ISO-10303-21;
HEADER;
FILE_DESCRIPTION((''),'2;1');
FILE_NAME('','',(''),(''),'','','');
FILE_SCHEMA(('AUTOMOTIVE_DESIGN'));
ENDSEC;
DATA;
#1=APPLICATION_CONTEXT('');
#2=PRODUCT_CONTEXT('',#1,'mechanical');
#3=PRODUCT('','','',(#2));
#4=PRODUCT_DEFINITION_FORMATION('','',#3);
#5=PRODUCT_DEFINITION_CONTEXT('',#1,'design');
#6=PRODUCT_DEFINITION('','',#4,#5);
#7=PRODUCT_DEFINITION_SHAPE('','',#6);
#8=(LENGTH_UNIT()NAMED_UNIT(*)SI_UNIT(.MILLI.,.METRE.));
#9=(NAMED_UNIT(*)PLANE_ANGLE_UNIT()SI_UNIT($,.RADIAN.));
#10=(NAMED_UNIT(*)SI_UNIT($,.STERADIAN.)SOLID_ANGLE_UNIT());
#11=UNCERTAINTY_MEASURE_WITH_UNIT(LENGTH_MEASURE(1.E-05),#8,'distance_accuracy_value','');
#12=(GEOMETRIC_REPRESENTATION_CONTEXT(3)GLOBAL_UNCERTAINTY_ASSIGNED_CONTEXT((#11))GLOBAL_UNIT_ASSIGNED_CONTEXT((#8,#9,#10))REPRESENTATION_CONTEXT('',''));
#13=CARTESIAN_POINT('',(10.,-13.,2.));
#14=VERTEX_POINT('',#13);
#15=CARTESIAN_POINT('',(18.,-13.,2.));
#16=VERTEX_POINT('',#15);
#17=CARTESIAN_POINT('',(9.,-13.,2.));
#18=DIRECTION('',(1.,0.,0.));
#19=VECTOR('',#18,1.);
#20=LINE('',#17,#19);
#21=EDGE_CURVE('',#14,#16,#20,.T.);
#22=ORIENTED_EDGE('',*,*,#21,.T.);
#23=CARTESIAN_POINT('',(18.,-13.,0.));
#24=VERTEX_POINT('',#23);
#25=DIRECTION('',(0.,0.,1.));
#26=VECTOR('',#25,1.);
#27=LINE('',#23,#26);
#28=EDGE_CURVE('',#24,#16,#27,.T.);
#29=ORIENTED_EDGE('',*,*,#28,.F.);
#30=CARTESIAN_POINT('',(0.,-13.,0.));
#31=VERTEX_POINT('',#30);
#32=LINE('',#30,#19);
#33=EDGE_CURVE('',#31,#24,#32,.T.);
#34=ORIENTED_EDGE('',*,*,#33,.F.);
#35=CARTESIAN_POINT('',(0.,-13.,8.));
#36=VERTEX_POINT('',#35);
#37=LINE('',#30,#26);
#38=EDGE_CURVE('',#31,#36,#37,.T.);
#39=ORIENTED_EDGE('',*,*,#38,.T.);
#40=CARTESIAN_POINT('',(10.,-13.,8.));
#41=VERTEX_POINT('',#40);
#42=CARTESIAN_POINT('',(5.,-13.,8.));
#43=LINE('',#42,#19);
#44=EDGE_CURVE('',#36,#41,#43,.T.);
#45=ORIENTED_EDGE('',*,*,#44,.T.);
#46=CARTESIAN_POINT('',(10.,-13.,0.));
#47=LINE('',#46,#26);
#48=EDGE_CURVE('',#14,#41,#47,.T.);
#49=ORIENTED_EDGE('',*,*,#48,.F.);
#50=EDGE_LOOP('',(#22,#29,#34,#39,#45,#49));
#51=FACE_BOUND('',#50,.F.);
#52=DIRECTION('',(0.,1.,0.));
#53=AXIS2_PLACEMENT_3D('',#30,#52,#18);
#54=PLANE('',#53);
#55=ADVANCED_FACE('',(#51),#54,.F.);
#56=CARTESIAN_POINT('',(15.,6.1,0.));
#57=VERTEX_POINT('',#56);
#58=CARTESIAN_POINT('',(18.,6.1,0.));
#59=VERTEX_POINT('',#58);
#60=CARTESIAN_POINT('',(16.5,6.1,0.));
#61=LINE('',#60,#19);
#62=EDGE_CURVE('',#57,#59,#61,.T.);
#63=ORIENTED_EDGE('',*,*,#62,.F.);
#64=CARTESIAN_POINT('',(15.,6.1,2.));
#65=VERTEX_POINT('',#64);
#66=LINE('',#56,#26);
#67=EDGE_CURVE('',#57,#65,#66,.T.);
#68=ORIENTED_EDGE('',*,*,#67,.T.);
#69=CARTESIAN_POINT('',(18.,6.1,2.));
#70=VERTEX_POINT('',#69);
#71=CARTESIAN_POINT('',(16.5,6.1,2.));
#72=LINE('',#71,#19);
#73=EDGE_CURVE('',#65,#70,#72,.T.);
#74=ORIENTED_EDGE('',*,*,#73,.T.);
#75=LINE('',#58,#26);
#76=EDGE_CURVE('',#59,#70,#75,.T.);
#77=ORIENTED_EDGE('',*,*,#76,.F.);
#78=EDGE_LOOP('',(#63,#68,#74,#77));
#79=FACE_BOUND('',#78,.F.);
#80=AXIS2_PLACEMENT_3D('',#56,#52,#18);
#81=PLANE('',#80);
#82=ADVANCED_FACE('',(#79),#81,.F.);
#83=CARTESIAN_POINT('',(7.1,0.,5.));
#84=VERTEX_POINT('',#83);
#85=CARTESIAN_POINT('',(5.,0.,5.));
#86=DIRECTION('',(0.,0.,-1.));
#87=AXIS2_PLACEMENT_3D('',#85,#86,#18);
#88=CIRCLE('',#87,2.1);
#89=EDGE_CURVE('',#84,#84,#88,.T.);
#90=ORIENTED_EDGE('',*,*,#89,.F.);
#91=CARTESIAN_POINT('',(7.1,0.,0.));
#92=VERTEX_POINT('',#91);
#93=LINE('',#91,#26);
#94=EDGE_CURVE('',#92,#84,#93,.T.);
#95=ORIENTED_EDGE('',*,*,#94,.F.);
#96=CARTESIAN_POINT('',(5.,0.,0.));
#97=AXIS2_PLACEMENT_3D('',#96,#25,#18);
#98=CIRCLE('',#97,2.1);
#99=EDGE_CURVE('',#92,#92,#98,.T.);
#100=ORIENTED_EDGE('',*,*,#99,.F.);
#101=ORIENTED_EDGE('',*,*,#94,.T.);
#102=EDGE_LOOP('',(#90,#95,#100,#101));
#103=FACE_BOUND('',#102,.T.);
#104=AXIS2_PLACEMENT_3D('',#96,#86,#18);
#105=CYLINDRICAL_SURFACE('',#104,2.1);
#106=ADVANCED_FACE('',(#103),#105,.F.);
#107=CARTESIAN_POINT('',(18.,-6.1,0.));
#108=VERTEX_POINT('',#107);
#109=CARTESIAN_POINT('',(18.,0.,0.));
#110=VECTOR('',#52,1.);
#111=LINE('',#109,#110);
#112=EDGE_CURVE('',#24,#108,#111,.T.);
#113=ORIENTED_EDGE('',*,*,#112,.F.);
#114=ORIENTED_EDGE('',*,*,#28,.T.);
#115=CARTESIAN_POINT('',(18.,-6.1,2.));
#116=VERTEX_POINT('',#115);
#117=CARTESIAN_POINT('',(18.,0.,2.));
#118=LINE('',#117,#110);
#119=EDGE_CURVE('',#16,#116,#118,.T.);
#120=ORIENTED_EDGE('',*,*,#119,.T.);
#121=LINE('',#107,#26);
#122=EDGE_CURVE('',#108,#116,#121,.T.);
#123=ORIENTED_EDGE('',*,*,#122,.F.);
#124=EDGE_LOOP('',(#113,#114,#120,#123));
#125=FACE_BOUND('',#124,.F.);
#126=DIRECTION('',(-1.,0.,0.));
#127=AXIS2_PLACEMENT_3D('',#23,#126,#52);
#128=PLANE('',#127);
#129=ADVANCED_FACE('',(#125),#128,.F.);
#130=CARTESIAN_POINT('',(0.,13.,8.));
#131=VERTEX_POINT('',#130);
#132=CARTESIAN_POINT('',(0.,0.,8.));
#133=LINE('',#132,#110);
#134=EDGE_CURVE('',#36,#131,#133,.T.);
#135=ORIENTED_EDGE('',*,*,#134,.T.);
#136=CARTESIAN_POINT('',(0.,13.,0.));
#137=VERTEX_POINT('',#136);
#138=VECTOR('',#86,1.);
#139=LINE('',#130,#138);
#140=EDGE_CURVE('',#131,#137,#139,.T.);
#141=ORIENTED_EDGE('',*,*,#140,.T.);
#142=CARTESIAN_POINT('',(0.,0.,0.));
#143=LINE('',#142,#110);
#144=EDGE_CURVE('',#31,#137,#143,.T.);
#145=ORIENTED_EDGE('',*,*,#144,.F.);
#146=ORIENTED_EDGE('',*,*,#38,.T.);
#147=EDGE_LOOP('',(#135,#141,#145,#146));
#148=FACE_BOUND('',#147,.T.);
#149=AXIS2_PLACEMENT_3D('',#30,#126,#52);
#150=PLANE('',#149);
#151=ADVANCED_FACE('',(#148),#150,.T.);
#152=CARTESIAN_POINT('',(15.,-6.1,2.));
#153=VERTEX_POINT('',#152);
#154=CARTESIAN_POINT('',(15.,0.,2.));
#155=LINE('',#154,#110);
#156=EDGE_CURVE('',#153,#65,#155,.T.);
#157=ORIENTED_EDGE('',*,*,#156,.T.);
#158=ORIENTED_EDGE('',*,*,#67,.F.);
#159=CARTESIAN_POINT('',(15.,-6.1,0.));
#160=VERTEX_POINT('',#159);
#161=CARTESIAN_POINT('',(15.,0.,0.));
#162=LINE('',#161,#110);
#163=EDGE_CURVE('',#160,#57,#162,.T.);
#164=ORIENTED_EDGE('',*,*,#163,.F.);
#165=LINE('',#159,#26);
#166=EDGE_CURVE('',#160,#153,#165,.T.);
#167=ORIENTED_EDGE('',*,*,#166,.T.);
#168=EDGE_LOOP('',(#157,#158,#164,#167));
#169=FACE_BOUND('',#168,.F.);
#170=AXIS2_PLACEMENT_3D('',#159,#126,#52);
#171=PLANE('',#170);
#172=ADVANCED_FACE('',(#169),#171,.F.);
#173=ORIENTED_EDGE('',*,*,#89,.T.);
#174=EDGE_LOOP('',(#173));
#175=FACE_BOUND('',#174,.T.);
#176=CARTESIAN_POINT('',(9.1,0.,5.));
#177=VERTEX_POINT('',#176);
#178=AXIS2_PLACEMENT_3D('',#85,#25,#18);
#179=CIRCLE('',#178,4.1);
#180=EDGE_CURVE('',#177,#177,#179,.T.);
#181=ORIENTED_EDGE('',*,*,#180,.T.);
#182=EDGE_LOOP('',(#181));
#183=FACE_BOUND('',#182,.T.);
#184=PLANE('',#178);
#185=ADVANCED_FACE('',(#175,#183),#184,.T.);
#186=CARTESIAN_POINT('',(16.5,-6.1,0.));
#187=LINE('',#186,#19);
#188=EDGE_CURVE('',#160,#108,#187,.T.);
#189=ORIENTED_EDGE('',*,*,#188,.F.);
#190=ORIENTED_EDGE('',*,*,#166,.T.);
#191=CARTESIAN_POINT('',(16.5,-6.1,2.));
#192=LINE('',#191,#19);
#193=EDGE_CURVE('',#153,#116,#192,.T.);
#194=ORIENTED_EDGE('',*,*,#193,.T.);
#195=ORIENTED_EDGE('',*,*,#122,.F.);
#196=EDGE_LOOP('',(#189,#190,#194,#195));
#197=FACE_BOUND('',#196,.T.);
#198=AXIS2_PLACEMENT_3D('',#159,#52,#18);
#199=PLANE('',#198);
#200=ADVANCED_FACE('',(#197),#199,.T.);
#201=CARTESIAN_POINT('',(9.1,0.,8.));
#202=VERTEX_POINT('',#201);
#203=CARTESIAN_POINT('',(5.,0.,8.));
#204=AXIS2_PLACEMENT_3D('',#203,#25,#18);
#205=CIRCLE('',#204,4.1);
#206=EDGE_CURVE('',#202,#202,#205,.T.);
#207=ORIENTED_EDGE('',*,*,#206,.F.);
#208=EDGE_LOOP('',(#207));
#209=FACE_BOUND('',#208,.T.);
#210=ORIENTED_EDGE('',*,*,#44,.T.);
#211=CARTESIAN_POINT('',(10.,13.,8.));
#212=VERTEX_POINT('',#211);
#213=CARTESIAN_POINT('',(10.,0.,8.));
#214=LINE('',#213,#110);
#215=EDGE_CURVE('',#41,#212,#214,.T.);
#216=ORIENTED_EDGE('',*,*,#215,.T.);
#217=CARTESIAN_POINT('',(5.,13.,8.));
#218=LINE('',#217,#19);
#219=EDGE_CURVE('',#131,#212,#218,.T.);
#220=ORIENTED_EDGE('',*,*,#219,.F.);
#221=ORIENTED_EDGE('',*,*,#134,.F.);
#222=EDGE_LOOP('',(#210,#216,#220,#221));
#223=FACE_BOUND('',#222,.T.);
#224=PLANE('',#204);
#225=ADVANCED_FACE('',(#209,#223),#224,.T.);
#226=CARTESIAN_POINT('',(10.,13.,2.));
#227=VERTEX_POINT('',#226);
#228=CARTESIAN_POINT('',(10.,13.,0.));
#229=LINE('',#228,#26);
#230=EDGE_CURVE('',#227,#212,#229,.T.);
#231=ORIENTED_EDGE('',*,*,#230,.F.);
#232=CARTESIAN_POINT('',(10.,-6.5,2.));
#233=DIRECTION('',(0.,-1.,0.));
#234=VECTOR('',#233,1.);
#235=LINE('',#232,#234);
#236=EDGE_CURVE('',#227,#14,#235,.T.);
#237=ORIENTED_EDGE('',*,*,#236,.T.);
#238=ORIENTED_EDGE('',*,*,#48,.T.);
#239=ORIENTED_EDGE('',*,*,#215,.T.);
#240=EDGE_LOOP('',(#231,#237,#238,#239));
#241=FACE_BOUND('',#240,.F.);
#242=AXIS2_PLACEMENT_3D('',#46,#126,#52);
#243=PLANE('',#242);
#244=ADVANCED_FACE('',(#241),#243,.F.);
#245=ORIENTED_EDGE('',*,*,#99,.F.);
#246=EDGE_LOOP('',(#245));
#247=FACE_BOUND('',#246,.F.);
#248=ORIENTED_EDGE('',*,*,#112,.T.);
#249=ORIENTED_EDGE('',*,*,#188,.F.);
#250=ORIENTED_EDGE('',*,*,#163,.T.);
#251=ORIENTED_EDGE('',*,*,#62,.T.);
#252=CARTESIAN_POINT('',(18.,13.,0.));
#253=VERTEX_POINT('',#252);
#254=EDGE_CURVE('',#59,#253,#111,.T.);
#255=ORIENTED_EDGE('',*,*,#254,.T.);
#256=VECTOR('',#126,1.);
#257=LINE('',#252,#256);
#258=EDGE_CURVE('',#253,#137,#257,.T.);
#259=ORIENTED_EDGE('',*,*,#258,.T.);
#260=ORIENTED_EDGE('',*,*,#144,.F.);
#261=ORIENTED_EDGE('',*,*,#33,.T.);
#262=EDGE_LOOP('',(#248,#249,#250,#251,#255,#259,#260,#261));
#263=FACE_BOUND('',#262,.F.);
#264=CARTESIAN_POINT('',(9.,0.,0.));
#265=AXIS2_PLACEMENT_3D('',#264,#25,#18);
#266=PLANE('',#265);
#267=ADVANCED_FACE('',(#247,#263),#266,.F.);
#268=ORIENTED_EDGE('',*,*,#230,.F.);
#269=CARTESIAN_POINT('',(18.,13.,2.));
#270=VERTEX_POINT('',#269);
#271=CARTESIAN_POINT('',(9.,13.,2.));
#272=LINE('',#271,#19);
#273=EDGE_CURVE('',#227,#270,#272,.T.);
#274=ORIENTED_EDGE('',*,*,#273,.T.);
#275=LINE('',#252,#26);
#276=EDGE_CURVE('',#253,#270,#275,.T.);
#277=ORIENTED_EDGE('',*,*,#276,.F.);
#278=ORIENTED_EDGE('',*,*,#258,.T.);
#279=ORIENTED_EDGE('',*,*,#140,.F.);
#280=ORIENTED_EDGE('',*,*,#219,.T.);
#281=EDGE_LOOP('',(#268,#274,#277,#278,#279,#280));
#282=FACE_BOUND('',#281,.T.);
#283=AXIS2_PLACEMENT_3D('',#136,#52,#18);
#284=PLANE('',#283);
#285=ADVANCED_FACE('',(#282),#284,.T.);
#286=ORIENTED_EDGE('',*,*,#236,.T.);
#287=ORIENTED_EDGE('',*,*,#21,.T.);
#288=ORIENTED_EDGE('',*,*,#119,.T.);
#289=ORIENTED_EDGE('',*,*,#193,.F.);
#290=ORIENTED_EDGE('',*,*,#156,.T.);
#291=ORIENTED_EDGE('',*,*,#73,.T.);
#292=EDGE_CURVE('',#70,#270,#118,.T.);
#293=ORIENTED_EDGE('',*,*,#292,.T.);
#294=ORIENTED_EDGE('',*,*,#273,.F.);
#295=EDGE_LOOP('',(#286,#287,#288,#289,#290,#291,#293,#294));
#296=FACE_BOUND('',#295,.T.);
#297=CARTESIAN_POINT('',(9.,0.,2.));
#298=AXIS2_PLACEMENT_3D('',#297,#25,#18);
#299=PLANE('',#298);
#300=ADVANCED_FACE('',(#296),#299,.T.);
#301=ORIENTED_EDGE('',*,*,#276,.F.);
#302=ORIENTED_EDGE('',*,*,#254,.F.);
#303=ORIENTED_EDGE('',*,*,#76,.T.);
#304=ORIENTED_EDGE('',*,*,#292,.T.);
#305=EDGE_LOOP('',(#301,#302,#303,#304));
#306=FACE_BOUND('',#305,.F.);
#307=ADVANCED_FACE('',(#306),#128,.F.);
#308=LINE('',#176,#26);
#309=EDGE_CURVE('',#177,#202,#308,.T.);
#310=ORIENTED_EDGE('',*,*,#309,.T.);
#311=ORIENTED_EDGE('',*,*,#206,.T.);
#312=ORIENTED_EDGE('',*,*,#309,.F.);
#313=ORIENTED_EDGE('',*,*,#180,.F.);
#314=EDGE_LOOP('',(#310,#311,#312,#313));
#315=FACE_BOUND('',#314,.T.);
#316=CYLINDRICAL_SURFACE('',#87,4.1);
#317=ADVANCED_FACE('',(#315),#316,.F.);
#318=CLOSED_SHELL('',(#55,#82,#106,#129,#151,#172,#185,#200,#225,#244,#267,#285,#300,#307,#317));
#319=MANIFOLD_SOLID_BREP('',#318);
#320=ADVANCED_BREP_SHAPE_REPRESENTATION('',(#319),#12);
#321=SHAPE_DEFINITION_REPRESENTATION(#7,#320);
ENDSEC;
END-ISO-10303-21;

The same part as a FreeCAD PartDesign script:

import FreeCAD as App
import Part
import Sketcher

V = App.Vector
Q = App.Units.Quantity


def add_polygon(sketch, points):
    """Adds a closed chain of lines whose ends are joined by coincident constraints."""
    first, n = sketch.GeometryCount, len(points)
    for a, b in zip(points, points[1:] + points[:1]):
        sketch.addGeometry(Part.LineSegment(App.Vector(*a, 0), App.Vector(*b, 0)), False)
    for i in range(n):
        sketch.addConstraint(Sketcher.Constraint("Coincident", first + i, 2, first + (i + 1) % n, 1))

doc = App.newDocument("Part")
body = doc.addObject("PartDesign::Body", "Body")

# Sketch on XY plane
sketch1 = body.newObject("Sketcher::SketchObject", "Sketch")
sketch1.AttachmentSupport = (doc.getObject("XY_Plane"), [""])
sketch1.MapMode = "FlatFace"
sketch1.AttachmentOffset = App.Placement(V(0, 0, 5), App.Rotation())
sketch1.addGeometry(Part.Circle(V(5, 0, 0), V(0, 0, 1), 4.1), False)
sketch1.addConstraint([
    Sketcher.Constraint("PointOnObject", 0, 3, -1),
    Sketcher.Constraint("Diameter", 0, Q("8.2 mm")),
    Sketcher.Constraint("DistanceX", -1, 1, 0, 3, Q("5 mm")),
])
pad1 = body.newObject("PartDesign::Pad", "Pad")
pad1.Profile = sketch1
pad1.Length = 3
body2 = doc.addObject("PartDesign::Body", "Body001")

# Sketch on XY plane
sketch2 = body2.newObject("Sketcher::SketchObject", "Sketch001")
sketch2.AttachmentSupport = (doc.getObject("XY_Plane001"), [""])
sketch2.MapMode = "FlatFace"
sketch2.addGeometry(Part.Circle(V(5, 0, 0), V(0, 0, 1), 2.1), False)
sketch2.addConstraint([
    Sketcher.Constraint("PointOnObject", 0, 3, -1),
    Sketcher.Constraint("Diameter", 0, Q("4.2 mm")),
    Sketcher.Constraint("DistanceX", -1, 1, 0, 3, Q("5 mm")),
])
pad2 = body2.newObject("PartDesign::Pad", "Pad001")
pad2.Profile = sketch2
pad2.Length = 8
doc.recompute()

boolean = body2.newObject("PartDesign::Boolean", "Boolean")
boolean.Type = "Fuse"
boolean.addObjects([body])
body3 = doc.addObject("PartDesign::Body", "Body002")

# Sketch on XY plane
sketch3 = body3.newObject("Sketcher::SketchObject", "Sketch002")
sketch3.AttachmentSupport = (doc.getObject("XY_Plane002"), [""])
sketch3.MapMode = "FlatFace"
add_polygon(sketch3, [(15, 6.1), (15, -6.1), (18, -6.1), (18, 6.1)])  # lines 0-3
sketch3.addConstraint([
    Sketcher.Constraint("Vertical", 0),
    Sketcher.Constraint("Horizontal", 1),
    Sketcher.Constraint("Vertical", 2),
    Sketcher.Constraint("Horizontal", 3),
    Sketcher.Constraint("DistanceX", 1, 1, 1, 2, Q("3 mm")),
    Sketcher.Constraint("DistanceY", 0, 2, 0, 1, Q("12.2 mm")),
    Sketcher.Constraint("DistanceX", -1, 1, 0, 2, Q("15 mm")),
    Sketcher.Constraint("DistanceY", 0, 2, -1, 1, Q("6.1 mm")),
])
pad3 = body3.newObject("PartDesign::Pad", "Pad002")
pad3.Profile = sketch3
pad3.Length = 2
body4 = doc.addObject("PartDesign::Body", "Body003")

# Sketch on XY plane
sketch4 = body4.newObject("Sketcher::SketchObject", "Sketch003")
sketch4.AttachmentSupport = (doc.getObject("XY_Plane003"), [""])
sketch4.MapMode = "FlatFace"
add_polygon(sketch4, [(0, 13), (0, -13), (10, -13), (10, 13)])  # lines 0-3
sketch4.addConstraint([
    Sketcher.Constraint("Vertical", 0),
    Sketcher.Constraint("Horizontal", 1),
    Sketcher.Constraint("Vertical", 2),
    Sketcher.Constraint("Horizontal", 3),
    Sketcher.Constraint("Symmetric", 0, 2, 3, 2, -1, 1),
    Sketcher.Constraint("DistanceX", 1, 1, 1, 2, Q("10 mm")),
    Sketcher.Constraint("DistanceY", 0, 2, 0, 1, Q("26 mm")),
])
pad4 = body4.newObject("PartDesign::Pad", "Pad003")
pad4.Profile = sketch4
pad4.Length = 8
body5 = doc.addObject("PartDesign::Body", "Body004")

# Sketch on XY plane
sketch5 = body5.newObject("Sketcher::SketchObject", "Sketch004")
sketch5.AttachmentSupport = (doc.getObject("XY_Plane004"), [""])
sketch5.MapMode = "FlatFace"
add_polygon(sketch5, [(0, 13), (0, -13), (18, -13), (18, 13)])  # lines 0-3
sketch5.addConstraint([
    Sketcher.Constraint("Vertical", 0),
    Sketcher.Constraint("Horizontal", 1),
    Sketcher.Constraint("Vertical", 2),
    Sketcher.Constraint("Horizontal", 3),
    Sketcher.Constraint("Symmetric", 0, 2, 3, 2, -1, 1),
    Sketcher.Constraint("DistanceX", 1, 1, 1, 2, Q("18 mm")),
    Sketcher.Constraint("DistanceY", 0, 2, 0, 1, Q("26 mm")),
])
pad5 = body5.newObject("PartDesign::Pad", "Pad004")
pad5.Profile = sketch5
pad5.Length = 2
doc.recompute()

boolean2 = body5.newObject("PartDesign::Boolean", "Boolean001")
boolean2.Type = "Fuse"
boolean2.addObjects([body4])
doc.recompute()

boolean3 = body5.newObject("PartDesign::Boolean", "Boolean002")
boolean3.Type = "Cut"
boolean3.addObjects([body3])
doc.recompute()

boolean4 = body5.newObject("PartDesign::Boolean", "Boolean003")
boolean4.Type = "Cut"
boolean4.addObjects([body2])

doc.recompute()
